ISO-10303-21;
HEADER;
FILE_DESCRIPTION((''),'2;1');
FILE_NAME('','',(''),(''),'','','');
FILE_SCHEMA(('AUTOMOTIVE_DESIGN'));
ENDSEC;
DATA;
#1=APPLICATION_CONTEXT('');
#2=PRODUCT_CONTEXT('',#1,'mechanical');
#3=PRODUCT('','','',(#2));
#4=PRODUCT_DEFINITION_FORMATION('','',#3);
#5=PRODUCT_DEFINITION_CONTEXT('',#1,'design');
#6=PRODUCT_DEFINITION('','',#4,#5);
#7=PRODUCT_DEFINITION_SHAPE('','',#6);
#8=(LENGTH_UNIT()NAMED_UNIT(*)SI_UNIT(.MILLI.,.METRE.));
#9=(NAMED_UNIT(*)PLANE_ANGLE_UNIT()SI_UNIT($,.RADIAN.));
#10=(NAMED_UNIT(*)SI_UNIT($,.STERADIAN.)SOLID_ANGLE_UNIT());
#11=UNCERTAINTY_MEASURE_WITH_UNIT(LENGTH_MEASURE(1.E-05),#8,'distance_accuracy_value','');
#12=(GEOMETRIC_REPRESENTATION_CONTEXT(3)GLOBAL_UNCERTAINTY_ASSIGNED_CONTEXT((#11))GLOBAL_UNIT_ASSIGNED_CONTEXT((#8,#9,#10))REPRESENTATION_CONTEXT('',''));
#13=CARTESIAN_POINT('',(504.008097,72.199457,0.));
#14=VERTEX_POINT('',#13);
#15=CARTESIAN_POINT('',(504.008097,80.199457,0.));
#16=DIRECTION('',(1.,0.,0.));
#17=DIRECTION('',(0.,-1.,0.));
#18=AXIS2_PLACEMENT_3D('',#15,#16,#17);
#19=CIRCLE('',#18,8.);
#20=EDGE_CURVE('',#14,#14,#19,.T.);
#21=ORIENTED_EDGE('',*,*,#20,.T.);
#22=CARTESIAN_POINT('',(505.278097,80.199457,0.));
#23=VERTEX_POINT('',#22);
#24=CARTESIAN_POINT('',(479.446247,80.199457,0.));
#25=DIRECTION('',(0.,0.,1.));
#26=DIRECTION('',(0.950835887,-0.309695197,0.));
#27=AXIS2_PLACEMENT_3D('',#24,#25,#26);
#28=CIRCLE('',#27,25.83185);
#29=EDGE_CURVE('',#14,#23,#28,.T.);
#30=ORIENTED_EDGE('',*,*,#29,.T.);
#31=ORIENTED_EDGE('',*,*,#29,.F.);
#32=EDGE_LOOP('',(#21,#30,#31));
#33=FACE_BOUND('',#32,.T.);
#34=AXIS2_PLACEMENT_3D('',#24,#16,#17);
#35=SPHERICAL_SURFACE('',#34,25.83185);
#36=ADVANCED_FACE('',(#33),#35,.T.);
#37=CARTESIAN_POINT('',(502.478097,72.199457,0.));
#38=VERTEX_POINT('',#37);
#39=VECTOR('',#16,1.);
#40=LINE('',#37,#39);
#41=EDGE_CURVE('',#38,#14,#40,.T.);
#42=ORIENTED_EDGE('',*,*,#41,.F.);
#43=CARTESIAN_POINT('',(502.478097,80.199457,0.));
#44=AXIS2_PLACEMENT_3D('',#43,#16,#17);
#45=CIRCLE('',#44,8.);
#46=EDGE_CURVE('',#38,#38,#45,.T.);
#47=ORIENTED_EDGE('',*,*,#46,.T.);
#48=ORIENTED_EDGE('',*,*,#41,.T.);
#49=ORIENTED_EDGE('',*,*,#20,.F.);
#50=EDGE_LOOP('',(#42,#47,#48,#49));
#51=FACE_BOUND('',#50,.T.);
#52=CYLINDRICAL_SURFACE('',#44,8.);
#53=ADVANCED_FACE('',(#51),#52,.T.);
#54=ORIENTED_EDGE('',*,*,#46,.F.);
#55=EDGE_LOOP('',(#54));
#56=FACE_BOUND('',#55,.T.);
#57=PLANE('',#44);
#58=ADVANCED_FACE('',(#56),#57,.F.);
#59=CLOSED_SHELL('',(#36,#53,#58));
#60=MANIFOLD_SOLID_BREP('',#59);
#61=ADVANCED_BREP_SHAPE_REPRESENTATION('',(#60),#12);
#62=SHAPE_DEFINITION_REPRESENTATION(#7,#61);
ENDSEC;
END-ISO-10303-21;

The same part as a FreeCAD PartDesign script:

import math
import FreeCAD as App
import Part
import Sketcher

doc = App.newDocument("Part")
body = doc.addObject("PartDesign::Body", "Body")

sketch1 = doc.addObject("Sketcher::SketchObject", "Sketch")
body.addObject(sketch1)
sketch1.AttachmentSupport = (doc.XY_Plane, [""])
sketch1.MapMode = "FlatFace"
sketch1.addGeometry([
    Part.LineSegment(App.Vector(502.478097, 88.199457, 0), App.Vector(502.478097, 80.199457, 0)),
    Part.LineSegment(App.Vector(502.478097, 80.199457, 0), App.Vector(505.278097, 80.199457, 0)),
    Part.ArcOfCircle(Part.Circle(App.Vector(479.446247, 80.199457, 0), App.Vector(0, 0, 1), 25.83185), math.radians(0), math.radians(18.040863)),
    Part.LineSegment(App.Vector(504.008097, 88.199457, 0), App.Vector(502.478097, 88.199457, 0)),
], False)
sketch1.addGeometry(Part.LineSegment(App.Vector(479.446247, 80.199457, 0), App.Vector(505.278097, 80.199457, 0)), True)
sketch1.addConstraint([
    Sketcher.Constraint("Coincident", 0, 2, 1, 1),
    Sketcher.Constraint("Coincident", 1, 2, 2, 1),
    Sketcher.Constraint("Coincident", 2, 2, 3, 1),
    Sketcher.Constraint("Coincident", 3, 2, 0, 1),
    Sketcher.Constraint("Vertical", 0),
    Sketcher.Constraint("Horizontal", 1),
    Sketcher.Constraint("Horizontal", 3),
    Sketcher.Constraint("Horizontal", 4),
    Sketcher.Constraint("Coincident", 4, 1, 2, 3),
    Sketcher.Constraint("Coincident", 4, 2, 1, 2),
    Sketcher.Constraint("DistanceY", 0, 2, 0, 1, 8.0),
    Sketcher.Constraint("DistanceX", 1, 1, 1, 2, 2.8),
    Sketcher.Constraint("DistanceX", 3, 2, 3, 1, 1.53),
    Sketcher.Constraint("DistanceX", -1, 1, 2, 3, 479.446247),
    Sketcher.Constraint("DistanceY", -1, 1, 2, 3, 80.199457),
])
revolution = doc.addObject("PartDesign::Revolution", "Revolution")
body.addObject(revolution)
revolution.Profile = sketch1
revolution.ReferenceAxis = (sketch1, ["Axis0"])
revolution.Angle = 360

doc.recompute()
